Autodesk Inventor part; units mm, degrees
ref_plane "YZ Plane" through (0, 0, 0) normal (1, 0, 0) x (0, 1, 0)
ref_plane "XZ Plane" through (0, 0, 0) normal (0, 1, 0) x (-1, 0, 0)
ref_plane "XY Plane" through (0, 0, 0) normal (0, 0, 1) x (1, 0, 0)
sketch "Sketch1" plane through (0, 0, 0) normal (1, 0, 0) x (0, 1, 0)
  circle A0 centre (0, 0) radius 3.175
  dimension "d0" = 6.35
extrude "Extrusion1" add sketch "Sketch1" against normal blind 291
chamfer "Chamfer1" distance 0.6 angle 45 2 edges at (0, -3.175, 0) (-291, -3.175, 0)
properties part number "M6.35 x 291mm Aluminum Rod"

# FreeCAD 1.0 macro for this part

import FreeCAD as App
import Part
import Sketcher

V = App.Vector


def edges_at(feature, points):
    """Names of the edges that pass closest to the given points."""
    edges = feature.Shape.Edges
    near = lambda p: min(range(len(edges)), key=lambda i: edges[i].distToShape(Part.Vertex(*p))[0])
    return sorted({f"Edge{near(p) + 1}" for p in points})

doc = App.newDocument("Part")
body = doc.addObject("PartDesign::Body", "Body")

# Sketch on YZ plane
sketch1 = doc.addObject("Sketcher::SketchObject", "Sketch")
body.addObject(sketch1)
sketch1.AttachmentSupport = (doc.YZ_Plane, [""])
sketch1.MapMode = "FlatFace"
sketch1.addGeometry(Part.Circle(V(0, 0, 0), V(0, 0, 1), 3.2), False)
sketch1.addConstraint([
    Sketcher.Constraint("Coincident", 0, 3, -1, 1),
    Sketcher.Constraint("Diameter", 0, 6.35),
])
pad1 = doc.addObject("PartDesign::Pad", "Pad")
body.addObject(pad1)
pad1.Profile = sketch1
pad1.Length = 291
pad1.Reversed = True
doc.recompute()

chamfer = doc.addObject("PartDesign::Chamfer", "Chamfer")
body.addObject(chamfer)
chamfer.Base = (pad1, edges_at(pad1, [(0, -3.175, 0), (-291, -3.175, 0)]))
chamfer.Size = 0.6

doc.recompute()
